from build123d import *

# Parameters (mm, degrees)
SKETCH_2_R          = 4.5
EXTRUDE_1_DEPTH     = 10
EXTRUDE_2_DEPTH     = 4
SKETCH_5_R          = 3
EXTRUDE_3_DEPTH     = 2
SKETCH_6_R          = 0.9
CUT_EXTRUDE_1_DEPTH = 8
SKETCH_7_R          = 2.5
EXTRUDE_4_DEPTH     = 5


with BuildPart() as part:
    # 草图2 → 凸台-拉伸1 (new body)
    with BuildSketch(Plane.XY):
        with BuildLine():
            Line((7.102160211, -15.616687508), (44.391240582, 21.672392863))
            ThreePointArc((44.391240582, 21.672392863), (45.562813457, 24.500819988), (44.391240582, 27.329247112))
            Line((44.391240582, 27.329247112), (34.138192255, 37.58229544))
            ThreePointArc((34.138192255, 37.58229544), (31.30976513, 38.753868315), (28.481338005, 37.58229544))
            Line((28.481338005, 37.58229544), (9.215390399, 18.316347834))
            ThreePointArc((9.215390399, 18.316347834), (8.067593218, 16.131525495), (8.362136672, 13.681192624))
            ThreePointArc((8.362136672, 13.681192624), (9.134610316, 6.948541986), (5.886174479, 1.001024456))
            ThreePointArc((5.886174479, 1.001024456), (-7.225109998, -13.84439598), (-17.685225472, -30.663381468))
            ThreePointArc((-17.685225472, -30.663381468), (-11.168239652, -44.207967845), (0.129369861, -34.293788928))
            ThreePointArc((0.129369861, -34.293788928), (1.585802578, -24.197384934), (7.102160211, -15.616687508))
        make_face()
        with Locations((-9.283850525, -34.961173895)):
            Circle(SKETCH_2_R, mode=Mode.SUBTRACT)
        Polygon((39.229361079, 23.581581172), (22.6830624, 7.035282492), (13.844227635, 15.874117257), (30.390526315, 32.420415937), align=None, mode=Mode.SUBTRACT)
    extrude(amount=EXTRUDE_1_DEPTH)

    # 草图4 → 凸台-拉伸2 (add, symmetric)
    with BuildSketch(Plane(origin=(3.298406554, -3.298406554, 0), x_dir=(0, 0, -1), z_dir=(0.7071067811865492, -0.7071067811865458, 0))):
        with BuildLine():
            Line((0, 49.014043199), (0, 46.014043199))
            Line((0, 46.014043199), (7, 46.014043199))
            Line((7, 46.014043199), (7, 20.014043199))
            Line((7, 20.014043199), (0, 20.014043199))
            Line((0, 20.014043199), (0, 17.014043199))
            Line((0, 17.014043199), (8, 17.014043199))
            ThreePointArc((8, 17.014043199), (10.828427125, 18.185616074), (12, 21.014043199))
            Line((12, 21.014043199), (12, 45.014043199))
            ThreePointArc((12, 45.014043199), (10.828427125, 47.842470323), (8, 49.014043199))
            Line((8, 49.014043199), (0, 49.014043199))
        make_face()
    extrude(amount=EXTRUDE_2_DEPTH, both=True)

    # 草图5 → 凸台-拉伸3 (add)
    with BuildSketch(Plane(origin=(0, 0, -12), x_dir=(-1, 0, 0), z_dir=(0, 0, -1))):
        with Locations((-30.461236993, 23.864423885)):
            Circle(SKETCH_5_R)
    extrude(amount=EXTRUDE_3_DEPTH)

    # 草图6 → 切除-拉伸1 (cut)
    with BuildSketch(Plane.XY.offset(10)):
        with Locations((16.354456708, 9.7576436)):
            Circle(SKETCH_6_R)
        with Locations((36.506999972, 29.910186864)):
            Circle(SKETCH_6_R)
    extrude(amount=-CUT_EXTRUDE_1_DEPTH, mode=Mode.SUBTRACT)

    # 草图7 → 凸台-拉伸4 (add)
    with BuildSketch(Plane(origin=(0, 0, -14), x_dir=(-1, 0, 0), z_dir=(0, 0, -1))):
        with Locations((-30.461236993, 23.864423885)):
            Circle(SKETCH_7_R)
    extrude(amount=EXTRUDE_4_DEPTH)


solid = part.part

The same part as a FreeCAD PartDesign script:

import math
import FreeCAD as App
import Part
import Sketcher

V = App.Vector


def add_polygon(sketch, points):
    """Adds a closed chain of lines whose ends are joined by coincident constraints."""
    first, n = sketch.GeometryCount, len(points)
    for a, b in zip(points, points[1:] + points[:1]):
        sketch.addGeometry(Part.LineSegment(App.Vector(*a, 0), App.Vector(*b, 0)), False)
    for i in range(n):
        sketch.addConstraint(Sketcher.Constraint("Coincident", first + i, 2, first + (i + 1) % n, 1))

doc = App.newDocument("Part")
body = doc.addObject("PartDesign::Body", "Body")

# Sketch on XY plane
sketch1 = doc.addObject("Sketcher::SketchObject", "Sketch")
body.addObject(sketch1)
sketch1.AttachmentSupport = (doc.XY_Plane, [""])
sketch1.MapMode = "FlatFace"
sketch1.addGeometry(Part.LineSegment(V(7.10216, -15.616688, 0), V(44.391241, 21.672393, 0)), False)  # 0
sketch1.addGeometry(Part.ArcOfCircle(Part.Circle(V(41.562813, 24.50082, 0), V(0, 0, 1), 4), math.radians(-45), math.radians(45)), False)  # 1
sketch1.addGeometry(Part.LineSegment(V(44.391241, 27.329247, 0), V(34.138192, 37.582295, 0)), False)  # 2
sketch1.addGeometry(Part.ArcOfCircle(Part.Circle(V(31.309765, 34.753868, 0), V(0, 0, 1), 4), math.radians(45), math.radians(135)), False)  # 3
sketch1.addGeometry(Part.LineSegment(V(28.481338, 37.582295, 0), V(9.21539, 18.316348, 0)), False)  # 4
sketch1.addGeometry(Part.ArcOfCircle(Part.Circle(V(12.152102, 15.379637, 0), V(0, 0, 1), 4.153137), math.radians(135), math.radians(204.139173)), False)  # 5
sketch1.addGeometry(Part.ArcOfCircle(Part.Circle(V(-1.867526, 9.096847, 0), V(0, 0, 1), 11.209916), math.radians(-46.236575), math.radians(24.139173)), False)  # 6
sketch1.addGeometry(Part.ArcOfCircle(Part.Circle(V(87.984145, -84.719417, 0), V(0, 0, 1), 118.693179), math.radians(133.763425), math.radians(152.907612)), False)  # 7
sketch1.addGeometry(Part.ArcOfCircle(Part.Circle(V(-9.283851, -34.961174, 0), V(0, 0, 1), 9.436849), math.radians(152.907612), math.radians(364.05541)), False)  # 8
sketch1.addGeometry(Part.ArcOfCircle(Part.Circle(V(24.081114, -32.595642, 0), V(0, 0, 1), 24.011867), math.radians(135), math.radians(184.05541)), False)  # 9
sketch1.addGeometry(Part.Circle(V(-9.283851, -34.961174, 0), V(0, 0, 1), 4.5), False)  # 10
add_polygon(sketch1, [(30.390526, 32.420416), (39.229361, 23.581581), (22.683062, 7.035282), (13.844228, 15.874117)])  # lines 11-14
sketch1.addConstraint(Sketcher.Constraint("Tangent", 0, 2, 1, 1))
sketch1.addConstraint(Sketcher.Constraint("Tangent", 1, 2, 2, 1))
sketch1.addConstraint(Sketcher.Constraint("Tangent", 2, 2, 3, 1))
sketch1.addConstraint(Sketcher.Constraint("Tangent", 3, 2, 4, 1))
sketch1.addConstraint(Sketcher.Constraint("Tangent", 4, 2, 5, 1))
sketch1.addConstraint(Sketcher.Constraint("Tangent", 5, 2, 6, 2))
sketch1.addConstraint(Sketcher.Constraint("Tangent", 6, 1, 7, 1))
sketch1.addConstraint(Sketcher.Constraint("Tangent", 7, 2, 8, 1))
sketch1.addConstraint(Sketcher.Constraint("Tangent", 8, 2, 9, 2))
sketch1.addConstraint(Sketcher.Constraint("Tangent", 9, 1, 0, 1))
sketch1.addConstraint(Sketcher.Constraint("Coincident", 10, 3, 8, 3))
sketch1.addConstraint(Sketcher.Constraint("Equal", 1, 3))
sketch1.addConstraint(Sketcher.Constraint("Perpendicular", 0, 2))
sketch1.addConstraint(Sketcher.Constraint("Perpendicular", 2, 4))
sketch1.addConstraint(Sketcher.Constraint("Perpendicular", 4, 11))
sketch1.addConstraint(Sketcher.Constraint("Perpendicular", 11, 12))
sketch1.addConstraint(Sketcher.Constraint("Perpendicular", 12, 13))
sketch1.addConstraint(Sketcher.Constraint("Perpendicular", 13, 14))
sketch1.addConstraint(Sketcher.Constraint("Horizontal", 2, 2, 3, 2))
sketch1.addConstraint(Sketcher.Constraint("Diameter", 10, 9.0))
sketch1.addConstraint(Sketcher.Constraint("Radius", 1, 4.0))
sketch1.addConstraint(Sketcher.Constraint("Distance", 2, 14.5))
sketch1.addConstraint(Sketcher.Constraint("Distance", 11, 12.5))
sketch1.addConstraint(Sketcher.Constraint("Distance", 12, 23.4))
sketch1.addConstraint(Sketcher.Constraint("Radius", 7, 118.693179))
sketch1.addConstraint(Sketcher.Constraint("Radius", 8, 9.436849))
sketch1.addConstraint(Sketcher.Constraint("Radius", 5, 4.153137))
sketch1.addConstraint(Sketcher.Constraint("Radius", 6, 11.209916))
sketch1.addConstraint(Sketcher.Constraint("Radius", 9, 24.011867))
sketch1.addConstraint(Sketcher.Constraint("DistanceX", -1, 1, 5, 3, 12.152102))
sketch1.addConstraint(Sketcher.Constraint("DistanceX", 9, 3, 1, 3, 17.481699))
sketch1.addConstraint(Sketcher.Constraint("DistanceY", 6, 3, 1, 2, 18.2324))
sketch1.addConstraint(Sketcher.Constraint("DistanceY", 6, 3, 4, 2, 9.2195))
sketch1.addConstraint(Sketcher.Constraint("DistanceX", 6, 3, 6, 1, 7.753701))
sketch1.addConstraint(Sketcher.Constraint("DistanceY", -1, 1, 1, 3, 24.50082))
sketch1.addConstraint(Sketcher.Constraint("DistanceX", -1, 1, 11, 2, 39.229361))
sketch1.addConstraint(Sketcher.Constraint("DistanceY", -1, 1, 11, 2, 23.581581))
pad1 = doc.addObject("PartDesign::Pad", "Pad")
body.addObject(pad1)
pad1.Profile = sketch1
pad1.Length = 10

# Sketch on an angled plane
sketch2 = doc.addObject("Sketcher::SketchObject", "Sketch001")
body.addObject(sketch2)
sketch2.Placement = App.Placement(V(3.298407, -3.298407, 0), App.Rotation(V(0, 0, -1), V(0.707106781, 0.707106781, 0), V(0.707106781, -0.707106781, 0), "ZXY"))
sketch2.addGeometry(Part.LineSegment(V(0, 49.014043, 0), V(0, 46.014043, 0)), False)
sketch2.addGeometry(Part.LineSegment(V(0, 46.014043, 0), V(7, 46.014043, 0)), False)
sketch2.addGeometry(Part.LineSegment(V(7, 46.014043, 0), V(7, 20.014043, 0)), False)
sketch2.addGeometry(Part.LineSegment(V(7, 20.014043, 0), V(0, 20.014043, 0)), False)
sketch2.addGeometry(Part.LineSegment(V(0, 20.014043, 0), V(0, 17.014043, 0)), False)
sketch2.addGeometry(Part.LineSegment(V(0, 17.014043, 0), V(8, 17.014043, 0)), False)
sketch2.addGeometry(Part.ArcOfCircle(Part.Circle(V(8, 21.014043, 0), V(0, 0, 1), 4), math.radians(-90), math.radians(0)), False)
sketch2.addGeometry(Part.LineSegment(V(12, 21.014043, 0), V(12, 45.014043, 0)), False)
sketch2.addGeometry(Part.ArcOfCircle(Part.Circle(V(8, 45.014043, 0), V(0, 0, 1), 4), math.radians(0), math.radians(90)), False)
sketch2.addGeometry(Part.LineSegment(V(8, 49.014043, 0), V(0, 49.014043, 0)), False)
sketch2.addConstraint(Sketcher.Constraint("Coincident", 0, 2, 1, 1))
sketch2.addConstraint(Sketcher.Constraint("Coincident", 1, 2, 2, 1))
sketch2.addConstraint(Sketcher.Constraint("Coincident", 2, 2, 3, 1))
sketch2.addConstraint(Sketcher.Constraint("Coincident", 3, 2, 4, 1))
sketch2.addConstraint(Sketcher.Constraint("Coincident", 4, 2, 5, 1))
sketch2.addConstraint(Sketcher.Constraint("Tangent", 5, 2, 6, 1))
sketch2.addConstraint(Sketcher.Constraint("Tangent", 6, 2, 7, 1))
sketch2.addConstraint(Sketcher.Constraint("Tangent", 7, 2, 8, 1))
sketch2.addConstraint(Sketcher.Constraint("Tangent", 8, 2, 9, 1))
sketch2.addConstraint(Sketcher.Constraint("Coincident", 9, 2, 0, 1))
sketch2.addConstraint(Sketcher.Constraint("Vertical", 0))
sketch2.addConstraint(Sketcher.Constraint("Horizontal", 1))
sketch2.addConstraint(Sketcher.Constraint("Vertical", 2))
sketch2.addConstraint(Sketcher.Constraint("Horizontal", 3))
sketch2.addConstraint(Sketcher.Constraint("Vertical", 4))
sketch2.addConstraint(Sketcher.Constraint("Horizontal", 5))
sketch2.addConstraint(Sketcher.Constraint("Vertical", 7))
sketch2.addConstraint(Sketcher.Constraint("Horizontal", 9))
sketch2.addConstraint(Sketcher.Constraint("Equal", 6, 8))
sketch2.addConstraint(Sketcher.Constraint("PointOnObject", 0, 2, -2))
sketch2.addConstraint(Sketcher.Constraint("PointOnObject", 3, 2, -2))
sketch2.addConstraint(Sketcher.Constraint("Equal", 0, 4))
sketch2.addConstraint(Sketcher.Constraint("Radius", 6, 4.0))
sketch2.addConstraint(Sketcher.Constraint("DistanceX", 1, 1, 1, 2, 7.0))
sketch2.addConstraint(Sketcher.Constraint("DistanceX", 5, 1, 5, 2, 8.0))
sketch2.addConstraint(Sketcher.Constraint("DistanceY", 0, 2, 0, 1, 3.0))
sketch2.addConstraint(Sketcher.Constraint("DistanceY", 2, 2, 2, 1, 26.0))
sketch2.addConstraint(Sketcher.Constraint("DistanceY", -1, 1, 6, 3, 21.014043))
pad2 = doc.addObject("PartDesign::Pad", "Pad001")
body.addObject(pad2)
pad2.Profile = sketch2
pad2.Length = 8
pad2.Midplane = True

# Sketch on XY plane
sketch3 = doc.addObject("Sketcher::SketchObject", "Sketch002")
body.addObject(sketch3)
sketch3.AttachmentSupport = (doc.XY_Plane, [""])
sketch3.MapMode = "FlatFace"
sketch3.AttachmentOffset = App.Placement(V(0, 0, -12), App.Rotation())
sketch3.addGeometry(Part.Circle(V(30.461237, 23.864424, 0), V(0, 0, 1), 3), False)
sketch3.addConstraint(Sketcher.Constraint("Diameter", 0, 6.0))
sketch3.addConstraint(Sketcher.Constraint("DistanceX", -1, 1, 0, 3, 30.461237))
sketch3.addConstraint(Sketcher.Constraint("DistanceY", -1, 1, 0, 3, 23.864424))
pad3 = doc.addObject("PartDesign::Pad", "Pad002")
body.addObject(pad3)
pad3.Profile = sketch3
pad3.Length = 2
pad3.Reversed = True

# Sketch on XY plane
sketch4 = doc.addObject("Sketcher::SketchObject", "Sketch003")
body.addObject(sketch4)
sketch4.AttachmentSupport = (doc.XY_Plane, [""])
sketch4.MapMode = "FlatFace"
sketch4.AttachmentOffset = App.Placement(V(0, 0, 10), App.Rotation())
sketch4.addGeometry(Part.Circle(V(16.354457, 9.757644, 0), V(0, 0, 1), 0.9), False)
sketch4.addGeometry(Part.Circle(V(36.507, 29.910187, 0), V(0, 0, 1), 0.9), False)
sketch4.addConstraint(Sketcher.Constraint("Equal", 0, 1))
sketch4.addConstraint(Sketcher.Constraint("Diameter", 0, 1.8))
sketch4.addConstraint(Sketcher.Constraint("DistanceX", -1, 1, 1, 3, 36.507))
sketch4.addConstraint(Sketcher.Constraint("DistanceX", -1, 1, 0, 3, 16.354457))
sketch4.addConstraint(Sketcher.Constraint("DistanceY", -1, 1, 0, 3, 9.757644))
sketch4.addConstraint(Sketcher.Constraint("DistanceY", -1, 1, 1, 3, 29.910187))
pocket1 = doc.addObject("PartDesign::Pocket", "Pocket")
body.addObject(pocket1)
pocket1.Profile = sketch4
pocket1.Length = 8

# Sketch on XY plane
sketch5 = doc.addObject("Sketcher::SketchObject", "Sketch004")
body.addObject(sketch5)
sketch5.AttachmentSupport = (doc.XY_Plane, [""])
sketch5.MapMode = "FlatFace"
sketch5.AttachmentOffset = App.Placement(V(0, 0, -14), App.Rotation())
sketch5.addGeometry(Part.Circle(V(30.461237, 23.864424, 0), V(0, 0, 1), 2.5), False)
sketch5.addConstraint(Sketcher.Constraint("Diameter", 0, 5.0))
sketch5.addConstraint(Sketcher.Constraint("DistanceX", -1, 1, 0, 3, 30.461237))
sketch5.addConstraint(Sketcher.Constraint("DistanceY", -1, 1, 0, 3, 23.864424))
pad4 = doc.addObject("PartDesign::Pad", "Pad003")
body.addObject(pad4)
pad4.Profile = sketch5
pad4.Length = 5
pad4.Reversed = True

doc.recompute()
